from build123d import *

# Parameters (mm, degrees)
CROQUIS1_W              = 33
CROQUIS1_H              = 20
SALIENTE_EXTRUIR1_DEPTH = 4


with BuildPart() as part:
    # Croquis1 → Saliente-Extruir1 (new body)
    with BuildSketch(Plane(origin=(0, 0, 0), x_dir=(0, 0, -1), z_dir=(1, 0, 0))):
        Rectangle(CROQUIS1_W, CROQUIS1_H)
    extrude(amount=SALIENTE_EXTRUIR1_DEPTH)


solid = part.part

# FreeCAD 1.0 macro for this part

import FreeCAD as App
import Part
import Sketcher
from FreeCAD import Vector


def add_polygon(sketch, points):
    """Adds a closed chain of lines whose ends are joined by coincident constraints."""
    first, n = sketch.GeometryCount, len(points)
    for a, b in zip(points, points[1:] + points[:1]):
        sketch.addGeometry(Part.LineSegment(App.Vector(*a, 0), App.Vector(*b, 0)), False)
    for i in range(n):
        sketch.addConstraint(Sketcher.Constraint("Coincident", first + i, 2, first + (i + 1) % n, 1))

doc = App.newDocument("Part")
body = doc.addObject("PartDesign::Body", "Body")

# Sketch on YZ plane
sketch1 = doc.addObject("Sketcher::SketchObject", "Sketch")
body.addObject(sketch1)
sketch1.AttachmentSupport = (doc.YZ_Plane, [""])
sketch1.MapMode = "FlatFace"
add_polygon(sketch1, [(10, 16.5), (-10, 16.5), (-10, -16.5), (10, -16.5)])  # lines 0-3
sketch1.addConstraint([
    Sketcher.Constraint("Horizontal", 0),
    Sketcher.Constraint("Vertical", 1),
    Sketcher.Constraint("Horizontal", 2),
    Sketcher.Constraint("Vertical", 3),
    Sketcher.Constraint("Symmetric", 0, 2, 2, 2, -1, 1),
    Sketcher.Constraint("DistanceX", 0, 2, 0, 1, 20.0),
    Sketcher.Constraint("DistanceY", 1, 2, 1, 1, 33.0),
])
pad1 = doc.addObject("PartDesign::Pad", "Pad")
body.addObject(pad1)
pad1.Profile = sketch1
pad1.Length = 4

doc.recompute()
